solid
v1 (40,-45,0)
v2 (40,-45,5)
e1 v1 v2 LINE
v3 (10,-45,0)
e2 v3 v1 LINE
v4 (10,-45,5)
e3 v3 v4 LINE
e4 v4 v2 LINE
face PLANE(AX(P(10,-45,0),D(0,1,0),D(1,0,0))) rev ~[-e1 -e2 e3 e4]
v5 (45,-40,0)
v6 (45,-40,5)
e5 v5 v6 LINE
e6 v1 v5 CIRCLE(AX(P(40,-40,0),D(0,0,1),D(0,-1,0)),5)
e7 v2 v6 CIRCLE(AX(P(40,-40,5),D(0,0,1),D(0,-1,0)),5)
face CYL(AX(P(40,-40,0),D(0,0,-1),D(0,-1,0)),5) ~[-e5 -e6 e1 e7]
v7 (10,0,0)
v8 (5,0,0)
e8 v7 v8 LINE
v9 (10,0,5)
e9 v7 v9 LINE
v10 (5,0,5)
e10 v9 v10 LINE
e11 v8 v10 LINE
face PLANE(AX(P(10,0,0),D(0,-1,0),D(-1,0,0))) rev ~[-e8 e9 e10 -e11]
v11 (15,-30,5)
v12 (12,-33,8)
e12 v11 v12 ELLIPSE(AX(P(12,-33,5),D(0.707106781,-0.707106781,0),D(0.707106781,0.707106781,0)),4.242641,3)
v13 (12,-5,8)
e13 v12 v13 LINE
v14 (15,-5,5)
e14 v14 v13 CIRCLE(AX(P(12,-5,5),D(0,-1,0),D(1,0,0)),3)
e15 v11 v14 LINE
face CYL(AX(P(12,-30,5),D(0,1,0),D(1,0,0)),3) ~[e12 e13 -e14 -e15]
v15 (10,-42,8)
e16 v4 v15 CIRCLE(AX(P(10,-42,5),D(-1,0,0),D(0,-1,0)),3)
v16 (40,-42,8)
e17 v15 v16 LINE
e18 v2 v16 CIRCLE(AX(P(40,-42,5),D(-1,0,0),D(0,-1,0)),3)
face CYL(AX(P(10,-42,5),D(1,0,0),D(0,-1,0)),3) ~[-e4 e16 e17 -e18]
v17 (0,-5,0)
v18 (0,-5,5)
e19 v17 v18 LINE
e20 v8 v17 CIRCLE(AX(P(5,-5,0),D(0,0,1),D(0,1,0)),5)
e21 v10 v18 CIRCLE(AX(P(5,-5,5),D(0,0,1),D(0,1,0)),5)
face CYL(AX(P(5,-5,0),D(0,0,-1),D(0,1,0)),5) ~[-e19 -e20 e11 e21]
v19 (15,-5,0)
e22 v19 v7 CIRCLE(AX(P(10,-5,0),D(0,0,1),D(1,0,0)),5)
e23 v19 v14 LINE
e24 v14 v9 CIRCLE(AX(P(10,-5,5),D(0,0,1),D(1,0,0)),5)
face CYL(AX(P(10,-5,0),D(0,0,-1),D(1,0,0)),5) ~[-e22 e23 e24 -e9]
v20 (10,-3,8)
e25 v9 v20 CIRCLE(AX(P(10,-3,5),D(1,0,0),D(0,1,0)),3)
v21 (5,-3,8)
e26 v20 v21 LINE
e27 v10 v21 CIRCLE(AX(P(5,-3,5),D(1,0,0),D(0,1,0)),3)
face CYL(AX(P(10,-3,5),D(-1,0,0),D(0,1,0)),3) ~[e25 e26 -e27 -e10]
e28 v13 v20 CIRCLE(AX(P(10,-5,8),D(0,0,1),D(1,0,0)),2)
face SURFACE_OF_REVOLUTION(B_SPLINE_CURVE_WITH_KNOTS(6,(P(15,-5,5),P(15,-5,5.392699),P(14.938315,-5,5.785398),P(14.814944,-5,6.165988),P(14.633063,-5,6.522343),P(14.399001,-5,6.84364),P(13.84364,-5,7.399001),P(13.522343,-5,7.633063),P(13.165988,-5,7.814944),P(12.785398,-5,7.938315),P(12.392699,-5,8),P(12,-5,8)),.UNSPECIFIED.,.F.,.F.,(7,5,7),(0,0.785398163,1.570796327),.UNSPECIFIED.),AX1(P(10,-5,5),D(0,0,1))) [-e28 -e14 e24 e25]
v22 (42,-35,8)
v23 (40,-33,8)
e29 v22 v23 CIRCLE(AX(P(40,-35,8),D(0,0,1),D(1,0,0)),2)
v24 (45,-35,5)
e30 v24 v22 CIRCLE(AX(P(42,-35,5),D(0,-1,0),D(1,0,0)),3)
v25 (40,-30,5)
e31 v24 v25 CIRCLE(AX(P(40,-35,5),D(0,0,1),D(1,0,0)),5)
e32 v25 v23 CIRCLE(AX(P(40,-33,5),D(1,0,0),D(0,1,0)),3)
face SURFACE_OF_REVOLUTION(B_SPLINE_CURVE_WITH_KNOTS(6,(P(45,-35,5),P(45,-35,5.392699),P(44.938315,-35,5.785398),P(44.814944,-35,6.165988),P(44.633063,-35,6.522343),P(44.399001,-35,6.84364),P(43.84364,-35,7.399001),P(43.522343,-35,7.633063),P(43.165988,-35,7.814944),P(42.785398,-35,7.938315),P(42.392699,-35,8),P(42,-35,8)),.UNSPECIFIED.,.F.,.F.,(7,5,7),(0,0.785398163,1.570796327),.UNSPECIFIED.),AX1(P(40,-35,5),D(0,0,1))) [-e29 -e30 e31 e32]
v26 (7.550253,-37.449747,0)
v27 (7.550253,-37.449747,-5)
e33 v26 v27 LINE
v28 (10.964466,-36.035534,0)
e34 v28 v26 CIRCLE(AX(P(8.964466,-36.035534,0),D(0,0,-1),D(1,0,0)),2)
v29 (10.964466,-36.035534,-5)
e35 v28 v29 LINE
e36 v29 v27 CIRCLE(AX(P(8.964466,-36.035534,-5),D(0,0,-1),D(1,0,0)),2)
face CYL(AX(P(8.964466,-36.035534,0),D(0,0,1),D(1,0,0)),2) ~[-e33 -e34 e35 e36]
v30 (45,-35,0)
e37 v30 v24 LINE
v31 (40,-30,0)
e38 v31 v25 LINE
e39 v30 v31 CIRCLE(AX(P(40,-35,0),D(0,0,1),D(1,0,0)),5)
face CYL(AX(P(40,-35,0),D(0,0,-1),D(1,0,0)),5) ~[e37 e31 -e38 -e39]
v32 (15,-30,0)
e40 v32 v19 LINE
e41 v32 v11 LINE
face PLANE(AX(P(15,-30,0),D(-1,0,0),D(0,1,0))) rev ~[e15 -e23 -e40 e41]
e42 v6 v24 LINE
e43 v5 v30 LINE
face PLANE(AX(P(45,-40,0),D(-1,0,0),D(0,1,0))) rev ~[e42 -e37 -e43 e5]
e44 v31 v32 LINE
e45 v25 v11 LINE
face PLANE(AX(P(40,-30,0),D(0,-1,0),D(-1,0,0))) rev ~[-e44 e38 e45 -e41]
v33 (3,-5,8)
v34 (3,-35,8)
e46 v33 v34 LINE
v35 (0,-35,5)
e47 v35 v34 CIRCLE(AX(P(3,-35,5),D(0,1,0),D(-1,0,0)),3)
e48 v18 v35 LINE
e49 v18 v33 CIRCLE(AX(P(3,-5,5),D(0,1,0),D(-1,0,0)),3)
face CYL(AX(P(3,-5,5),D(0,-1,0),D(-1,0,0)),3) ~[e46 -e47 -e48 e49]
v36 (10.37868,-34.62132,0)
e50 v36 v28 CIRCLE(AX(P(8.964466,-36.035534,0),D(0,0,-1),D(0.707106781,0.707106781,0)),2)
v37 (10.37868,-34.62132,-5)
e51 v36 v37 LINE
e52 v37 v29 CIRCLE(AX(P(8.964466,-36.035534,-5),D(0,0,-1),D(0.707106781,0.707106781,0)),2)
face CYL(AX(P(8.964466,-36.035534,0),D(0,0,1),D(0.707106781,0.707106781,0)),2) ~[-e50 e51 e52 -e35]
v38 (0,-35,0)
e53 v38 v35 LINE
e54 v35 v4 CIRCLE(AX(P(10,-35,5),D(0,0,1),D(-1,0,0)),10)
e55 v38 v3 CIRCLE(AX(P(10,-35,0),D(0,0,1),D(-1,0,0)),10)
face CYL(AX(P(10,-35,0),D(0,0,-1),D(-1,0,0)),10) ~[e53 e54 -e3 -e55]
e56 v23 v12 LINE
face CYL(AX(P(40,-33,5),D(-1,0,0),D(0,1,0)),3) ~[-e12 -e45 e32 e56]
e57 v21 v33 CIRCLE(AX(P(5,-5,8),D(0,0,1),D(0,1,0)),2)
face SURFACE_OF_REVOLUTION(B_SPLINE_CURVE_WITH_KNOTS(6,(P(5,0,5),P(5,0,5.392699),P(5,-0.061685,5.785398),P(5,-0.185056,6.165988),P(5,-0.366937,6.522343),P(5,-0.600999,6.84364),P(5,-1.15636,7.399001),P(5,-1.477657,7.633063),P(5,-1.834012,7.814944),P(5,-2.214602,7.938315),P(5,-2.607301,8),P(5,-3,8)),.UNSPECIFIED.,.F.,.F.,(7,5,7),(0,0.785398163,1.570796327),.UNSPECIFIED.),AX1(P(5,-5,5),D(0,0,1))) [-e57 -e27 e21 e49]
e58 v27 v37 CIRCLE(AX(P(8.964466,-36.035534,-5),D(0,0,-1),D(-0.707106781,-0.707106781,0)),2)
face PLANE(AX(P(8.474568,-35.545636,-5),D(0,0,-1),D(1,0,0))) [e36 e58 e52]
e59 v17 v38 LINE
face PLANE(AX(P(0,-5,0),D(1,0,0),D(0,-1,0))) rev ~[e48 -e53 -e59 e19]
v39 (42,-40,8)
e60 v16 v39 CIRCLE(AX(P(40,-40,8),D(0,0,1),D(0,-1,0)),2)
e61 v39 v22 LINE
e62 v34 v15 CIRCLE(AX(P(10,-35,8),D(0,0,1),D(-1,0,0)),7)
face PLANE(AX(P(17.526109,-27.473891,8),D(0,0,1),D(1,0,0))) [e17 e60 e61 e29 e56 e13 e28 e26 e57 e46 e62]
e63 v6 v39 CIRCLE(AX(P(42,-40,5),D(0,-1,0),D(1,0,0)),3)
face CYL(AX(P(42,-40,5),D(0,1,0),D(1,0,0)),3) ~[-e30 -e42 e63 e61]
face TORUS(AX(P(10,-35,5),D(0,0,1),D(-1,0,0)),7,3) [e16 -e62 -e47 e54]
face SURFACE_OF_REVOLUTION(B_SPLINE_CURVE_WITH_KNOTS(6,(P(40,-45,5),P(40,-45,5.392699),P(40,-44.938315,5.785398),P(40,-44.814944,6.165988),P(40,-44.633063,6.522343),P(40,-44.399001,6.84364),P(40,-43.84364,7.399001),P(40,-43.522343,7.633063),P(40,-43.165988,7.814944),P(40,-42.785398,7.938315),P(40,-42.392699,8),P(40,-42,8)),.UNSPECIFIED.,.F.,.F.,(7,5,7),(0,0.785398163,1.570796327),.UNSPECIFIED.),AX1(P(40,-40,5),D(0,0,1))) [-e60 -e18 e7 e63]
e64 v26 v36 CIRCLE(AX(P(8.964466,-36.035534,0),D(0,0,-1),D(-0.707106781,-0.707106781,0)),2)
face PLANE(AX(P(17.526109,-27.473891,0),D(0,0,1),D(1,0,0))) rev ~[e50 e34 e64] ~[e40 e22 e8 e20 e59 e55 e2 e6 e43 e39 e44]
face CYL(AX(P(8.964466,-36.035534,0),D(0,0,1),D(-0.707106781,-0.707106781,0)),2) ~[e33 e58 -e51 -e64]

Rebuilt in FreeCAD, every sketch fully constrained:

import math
import FreeCAD as App
import Part
import Sketcher


def edges_at(feature, points):
    """Names of the edges that pass closest to the given points."""
    edges = feature.Shape.Edges
    near = lambda p: min(range(len(edges)), key=lambda i: edges[i].distToShape(Part.Vertex(*p))[0])
    return sorted({f"Edge{near(p) + 1}" for p in points})

doc = App.newDocument("Part")
body = doc.addObject("PartDesign::Body", "Body")

# Sketch on XY plane
sketch1 = body.newObject("Sketcher::SketchObject", "Sketch")
sketch1.AttachmentSupport = (doc.getObject("XY_Plane"), [""])
sketch1.MapMode = "FlatFace"
sketch1.addGeometry(Part.ArcOfCircle(Part.Circle(App.Vector(5, -5, 0), App.Vector(0, 0, 1), 5), math.radians(90), math.radians(180)), False)
sketch1.addGeometry(Part.LineSegment(App.Vector(0, -5, 0), App.Vector(0, -35, 0)), False)
sketch1.addGeometry(Part.ArcOfCircle(Part.Circle(App.Vector(10, -35, 0), App.Vector(0, 0, 1), 10), math.radians(180), math.radians(270)), False)
sketch1.addGeometry(Part.LineSegment(App.Vector(10, -45, 0), App.Vector(40, -45, 0)), False)
sketch1.addGeometry(Part.ArcOfCircle(Part.Circle(App.Vector(40, -40, 0), App.Vector(0, 0, 1), 5), math.radians(-90), math.radians(0)), False)
sketch1.addGeometry(Part.LineSegment(App.Vector(45, -40, 0), App.Vector(45, -35, 0)), False)
sketch1.addGeometry(Part.ArcOfCircle(Part.Circle(App.Vector(40, -35, 0), App.Vector(0, 0, 1), 5), math.radians(0), math.radians(90)), False)
sketch1.addGeometry(Part.LineSegment(App.Vector(40, -30, 0), App.Vector(15, -30, 0)), False)
sketch1.addGeometry(Part.LineSegment(App.Vector(15, -30, 0), App.Vector(15, -5, 0)), False)
sketch1.addGeometry(Part.ArcOfCircle(Part.Circle(App.Vector(10, -5, 0), App.Vector(0, 0, 1), 5), math.radians(0), math.radians(90)), False)
sketch1.addGeometry(Part.LineSegment(App.Vector(10, 0, 0), App.Vector(5, 0, 0)), False)
sketch1.addConstraint(Sketcher.Constraint("Tangent", 0, 2, 1, 1))
sketch1.addConstraint(Sketcher.Constraint("Tangent", 1, 2, 2, 1))
sketch1.addConstraint(Sketcher.Constraint("Tangent", 2, 2, 3, 1))
sketch1.addConstraint(Sketcher.Constraint("Tangent", 3, 2, 4, 1))
sketch1.addConstraint(Sketcher.Constraint("Tangent", 4, 2, 5, 1))
sketch1.addConstraint(Sketcher.Constraint("Tangent", 5, 2, 6, 1))
sketch1.addConstraint(Sketcher.Constraint("Tangent", 6, 2, 7, 1))
sketch1.addConstraint(Sketcher.Constraint("Coincident", 7, 2, 8, 1))
sketch1.addConstraint(Sketcher.Constraint("Tangent", 8, 2, 9, 1))
sketch1.addConstraint(Sketcher.Constraint("Tangent", 9, 2, 10, 1))
sketch1.addConstraint(Sketcher.Constraint("Tangent", 10, 2, 0, 1))
sketch1.addConstraint(Sketcher.Constraint("Vertical", 1))
sketch1.addConstraint(Sketcher.Constraint("Horizontal", 3))
sketch1.addConstraint(Sketcher.Constraint("Vertical", 5))
sketch1.addConstraint(Sketcher.Constraint("Horizontal", 7))
sketch1.addConstraint(Sketcher.Constraint("Vertical", 8))
sketch1.addConstraint(Sketcher.Constraint("Horizontal", 10))
sketch1.addConstraint(Sketcher.Constraint("Equal", 0, 4))
sketch1.addConstraint(Sketcher.Constraint("Equal", 4, 6))
sketch1.addConstraint(Sketcher.Constraint("Equal", 6, 9))
sketch1.addConstraint(Sketcher.Constraint("PointOnObject", 0, 2, -2))
sketch1.addConstraint(Sketcher.Constraint("PointOnObject", 9, 2, -1))
sketch1.addConstraint(Sketcher.Constraint("Horizontal", 2, 3, 6, 3))
sketch1.addConstraint(Sketcher.Constraint("Vertical", 2, 3, 9, 3))
sketch1.addConstraint(Sketcher.Constraint("Equal", 3, 1))
sketch1.addConstraint(Sketcher.Constraint("Radius", 0, 5.0))
sketch1.addConstraint(Sketcher.Constraint("Radius", 2, 10.0))
sketch1.addConstraint(Sketcher.Constraint("DistanceX", 3, 1, 3, 2, 30.0))
pad1 = body.newObject("PartDesign::Pad", "Pad")
pad1.Profile = sketch1
pad1.Length = 8
doc.recompute()

fillet = body.newObject("PartDesign::Fillet", "Fillet")
fillet.Base = (pad1, edges_at(pad1, [
    (15, -17.5, 8),
    (27.5, -30, 8),
    (13.536, -1.464, 8),
    (7.5, 0, 8),
    (1.464, -1.464, 8),
    (0, -20, 8),
    (2.929, -42.071, 8),
    (25, -45, 8),
    (43.536, -43.536, 8),
    (45, -37.5, 8),
    (43.536, -31.464, 8),
]))
fillet.Radius = 3

# Sketch on XY plane
sketch2 = body.newObject("Sketcher::SketchObject", "Sketch001")
sketch2.AttachmentSupport = (doc.getObject("XY_Plane"), [""])
sketch2.MapMode = "FlatFace"
sketch2.addGeometry(Part.ArcOfCircle(Part.Circle(App.Vector(9, -36, 0), App.Vector(0, 0, 1), 2), math.radians(45), math.radians(225)), False)
sketch2.addGeometry(Part.ArcOfCircle(Part.Circle(App.Vector(9, -36, 0), App.Vector(0, 0, 1), 2), math.radians(0), math.radians(45)), False)
sketch2.addGeometry(Part.ArcOfCircle(Part.Circle(App.Vector(9, -36, 0), App.Vector(0, 0, 1), 2), math.radians(-135), math.radians(0)), False)
sketch2.addConstraint(Sketcher.Constraint("Tangent", 0, 1, 1, 2))
sketch2.addConstraint(Sketcher.Constraint("Tangent", 1, 1, 2, 2))
sketch2.addConstraint(Sketcher.Constraint("Tangent", 2, 1, 0, 2))
sketch2.addConstraint(Sketcher.Constraint("Horizontal", 2, 3, 1, 1))
sketch2.addConstraint(Sketcher.Constraint("Radius", 0, 2.0))
sketch2.addConstraint(Sketcher.Constraint("DistanceX", -1, 1, 0, 1, 10.37868))
sketch2.addConstraint(Sketcher.Constraint("DistanceY", 0, 1, -1, 1, 34.62132))
sketch2.addConstraint(Sketcher.Constraint("DistanceX", -1, 1, 0, 3, 8.964466))
sketch2.addConstraint(Sketcher.Constraint("DistanceX", -1, 1, 2, 1, 7.550253))
pad2 = body.newObject("PartDesign::Pad", "Pad001")
pad2.Profile = sketch2
pad2.Length = 5
pad2.Reversed = True

doc.recompute()
